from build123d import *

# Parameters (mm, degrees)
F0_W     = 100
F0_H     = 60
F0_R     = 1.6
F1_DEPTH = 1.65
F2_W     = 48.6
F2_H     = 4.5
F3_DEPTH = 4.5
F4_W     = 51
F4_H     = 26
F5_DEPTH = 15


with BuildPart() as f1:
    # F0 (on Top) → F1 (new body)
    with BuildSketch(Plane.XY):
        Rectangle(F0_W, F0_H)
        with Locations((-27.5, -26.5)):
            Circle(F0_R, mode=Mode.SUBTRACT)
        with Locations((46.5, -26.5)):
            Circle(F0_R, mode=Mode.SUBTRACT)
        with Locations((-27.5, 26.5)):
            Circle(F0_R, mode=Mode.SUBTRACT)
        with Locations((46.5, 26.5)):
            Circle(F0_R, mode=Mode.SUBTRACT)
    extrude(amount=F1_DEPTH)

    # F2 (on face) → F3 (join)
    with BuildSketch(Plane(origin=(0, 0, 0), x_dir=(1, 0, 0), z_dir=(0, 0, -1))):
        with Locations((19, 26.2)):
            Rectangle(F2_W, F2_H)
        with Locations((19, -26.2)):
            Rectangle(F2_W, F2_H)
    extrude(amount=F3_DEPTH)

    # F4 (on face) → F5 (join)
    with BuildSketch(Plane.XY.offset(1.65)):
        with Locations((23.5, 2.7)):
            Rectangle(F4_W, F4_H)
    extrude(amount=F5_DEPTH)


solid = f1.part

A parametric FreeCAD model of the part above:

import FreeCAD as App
import Part
import Sketcher

V = App.Vector
Q = App.Units.Quantity

doc = App.newDocument("Part")
body = doc.addObject("PartDesign::Body", "Body")

# Sketch on XY plane
sketch1 = body.newObject("Sketcher::SketchObject", "Sketch")
sketch1.AttachmentSupport = (doc.getObject("XY_Plane"), [""])
sketch1.MapMode = "FlatFace"
sketch1.addGeometry(Part.LineSegment(V(-50, 30, 0), V(-50, -30, 0)), False)
sketch1.addGeometry(Part.LineSegment(V(-50, -30, 0), V(50, -30, 0)), False)
sketch1.addGeometry(Part.LineSegment(V(50, -30, 0), V(50, 30, 0)), False)
sketch1.addGeometry(Part.LineSegment(V(50, 30, 0), V(-50, 30, 0)), False)
sketch1.addGeometry(Part.Circle(V(-27.5, -26.5, 0), V(0, 0, 1), 1.6), False)
sketch1.addGeometry(Part.Circle(V(46.5, -26.5, 0), V(0, 0, 1), 1.6), False)
sketch1.addGeometry(Part.Circle(V(-27.5, 26.5, 0), V(0, 0, 1), 1.6), False)
sketch1.addGeometry(Part.Circle(V(46.5, 26.5, 0), V(0, 0, 1), 1.6), False)
sketch1.addConstraint(Sketcher.Constraint("Coincident", 0, 2, 1, 1))
sketch1.addConstraint(Sketcher.Constraint("Coincident", 1, 2, 2, 1))
sketch1.addConstraint(Sketcher.Constraint("Coincident", 2, 2, 3, 1))
sketch1.addConstraint(Sketcher.Constraint("Coincident", 3, 2, 0, 1))
sketch1.addConstraint(Sketcher.Constraint("Vertical", 0))
sketch1.addConstraint(Sketcher.Constraint("Horizontal", 1))
sketch1.addConstraint(Sketcher.Constraint("Vertical", 2))
sketch1.addConstraint(Sketcher.Constraint("Horizontal", 3))
sketch1.addConstraint(Sketcher.Constraint("Equal", 4, 5))
sketch1.addConstraint(Sketcher.Constraint("Equal", 5, 6))
sketch1.addConstraint(Sketcher.Constraint("Equal", 6, 7))
sketch1.addConstraint(Sketcher.Constraint("Symmetric", 0, 2, 2, 2, -1, 1))
sketch1.addConstraint(Sketcher.Constraint("Symmetric", 4, 3, 6, 3, -1))
sketch1.addConstraint(Sketcher.Constraint("Symmetric", 5, 3, 7, 3, -1))
sketch1.addConstraint(Sketcher.Constraint("Horizontal", 4, 3, 5, 3))
sketch1.addConstraint(Sketcher.Constraint("Diameter", 4, Q("3.2 mm")))
sketch1.addConstraint(Sketcher.Constraint("DistanceX", 1, 1, 1, 2, Q("100 mm")))
sketch1.addConstraint(Sketcher.Constraint("DistanceY", 0, 2, 0, 1, Q("60 mm")))
sketch1.addConstraint(Sketcher.Constraint("DistanceX", 4, 3, 5, 3, Q("74 mm")))
sketch1.addConstraint(Sketcher.Constraint("DistanceY", 4, 3, 6, 3, Q("53 mm")))
sketch1.addConstraint(Sketcher.Constraint("DistanceX", 4, 3, -1, 1, Q("27.5 mm")))
pad1 = body.newObject("PartDesign::Pad", "Pad")
pad1.Profile = sketch1
pad1.Length = 1.65

# Sketch on XY plane
sketch2 = body.newObject("Sketcher::SketchObject", "Sketch001")
sketch2.AttachmentSupport = (doc.getObject("XY_Plane"), [""])
sketch2.MapMode = "FlatFace"
sketch2.addGeometry(Part.LineSegment(V(-5.3, -28.4, 0), V(-5.3, -23.9, 0)), False)
sketch2.addGeometry(Part.LineSegment(V(-5.3, -23.9, 0), V(43.3, -23.9, 0)), False)
sketch2.addGeometry(Part.LineSegment(V(43.3, -23.9, 0), V(43.3, -28.4, 0)), False)
sketch2.addGeometry(Part.LineSegment(V(43.3, -28.4, 0), V(-5.3, -28.4, 0)), False)
sketch2.addGeometry(Part.LineSegment(V(-5.3, 23.9, 0), V(-5.3, 28.4, 0)), False)
sketch2.addGeometry(Part.LineSegment(V(-5.3, 28.4, 0), V(43.3, 28.4, 0)), False)
sketch2.addGeometry(Part.LineSegment(V(43.3, 28.4, 0), V(43.3, 23.9, 0)), False)
sketch2.addGeometry(Part.LineSegment(V(43.3, 23.9, 0), V(-5.3, 23.9, 0)), False)
sketch2.addConstraint(Sketcher.Constraint("Coincident", 0, 2, 1, 1))
sketch2.addConstraint(Sketcher.Constraint("Coincident", 1, 2, 2, 1))
sketch2.addConstraint(Sketcher.Constraint("Coincident", 2, 2, 3, 1))
sketch2.addConstraint(Sketcher.Constraint("Coincident", 3, 2, 0, 1))
sketch2.addConstraint(Sketcher.Constraint("Coincident", 4, 2, 5, 1))
sketch2.addConstraint(Sketcher.Constraint("Coincident", 5, 2, 6, 1))
sketch2.addConstraint(Sketcher.Constraint("Coincident", 6, 2, 7, 1))
sketch2.addConstraint(Sketcher.Constraint("Coincident", 7, 2, 4, 1))
sketch2.addConstraint(Sketcher.Constraint("Vertical", 0))
sketch2.addConstraint(Sketcher.Constraint("Horizontal", 1))
sketch2.addConstraint(Sketcher.Constraint("Vertical", 2))
sketch2.addConstraint(Sketcher.Constraint("Horizontal", 3))
sketch2.addConstraint(Sketcher.Constraint("Vertical", 4))
sketch2.addConstraint(Sketcher.Constraint("Horizontal", 5))
sketch2.addConstraint(Sketcher.Constraint("Vertical", 6))
sketch2.addConstraint(Sketcher.Constraint("Horizontal", 7))
sketch2.addConstraint(Sketcher.Constraint("Symmetric", 3, 2, 4, 2, -1))
sketch2.addConstraint(Sketcher.Constraint("Symmetric", 1, 2, 6, 2, -1))
sketch2.addConstraint(Sketcher.Constraint("DistanceX", 1, 1, 1, 2, Q("48.6 mm")))
sketch2.addConstraint(Sketcher.Constraint("DistanceY", 0, 1, 0, 2, Q("4.5 mm")))
sketch2.addConstraint(Sketcher.Constraint("DistanceX", 0, 2, -1, 1, Q("5.3 mm")))
sketch2.addConstraint(Sketcher.Constraint("DistanceY", 0, 2, 4, 2, Q("52.4 mm")))
pad2 = body.newObject("PartDesign::Pad", "Pad001")
pad2.Profile = sketch2
pad2.Length = 4.5
pad2.Reversed = True

# Sketch on XY plane
sketch3 = body.newObject("Sketcher::SketchObject", "Sketch002")
sketch3.AttachmentSupport = (doc.getObject("XY_Plane"), [""])
sketch3.MapMode = "FlatFace"
sketch3.AttachmentOffset = App.Placement(V(0, 0, 1.65), App.Rotation())
sketch3.addGeometry(Part.LineSegment(V(-2, 16, 0), V(-2, -10, 0)), False)
sketch3.addGeometry(Part.LineSegment(V(-2, -10, 0), V(49, -10, 0)), False)
sketch3.addGeometry(Part.LineSegment(V(49, -10, 0), V(49, 16, 0)), False)
sketch3.addGeometry(Part.LineSegment(V(49, 16, 0), V(-2, 16, 0)), False)
sketch3.addConstraint(Sketcher.Constraint("Coincident", 0, 2, 1, 1))
sketch3.addConstraint(Sketcher.Constraint("Coincident", 1, 2, 2, 1))
sketch3.addConstraint(Sketcher.Constraint("Coincident", 2, 2, 3, 1))
sketch3.addConstraint(Sketcher.Constraint("Coincident", 3, 2, 0, 1))
sketch3.addConstraint(Sketcher.Constraint("Vertical", 0))
sketch3.addConstraint(Sketcher.Constraint("Horizontal", 1))
sketch3.addConstraint(Sketcher.Constraint("Vertical", 2))
sketch3.addConstraint(Sketcher.Constraint("Horizontal", 3))
sketch3.addConstraint(Sketcher.Constraint("DistanceX", 1, 1, 1, 2, Q("51 mm")))
sketch3.addConstraint(Sketcher.Constraint("DistanceY", 0, 2, 0, 1, Q("26 mm")))
sketch3.addConstraint(Sketcher.Constraint("DistanceX", 0, 2, -1, 1, Q("2 mm")))
sketch3.addConstraint(Sketcher.Constraint("DistanceY", 0, 2, -1, 1, Q("10.3 mm")))
pad3 = body.newObject("PartDesign::Pad", "Pad002")
pad3.Profile = sketch3
pad3.Length = 15

doc.recompute()
